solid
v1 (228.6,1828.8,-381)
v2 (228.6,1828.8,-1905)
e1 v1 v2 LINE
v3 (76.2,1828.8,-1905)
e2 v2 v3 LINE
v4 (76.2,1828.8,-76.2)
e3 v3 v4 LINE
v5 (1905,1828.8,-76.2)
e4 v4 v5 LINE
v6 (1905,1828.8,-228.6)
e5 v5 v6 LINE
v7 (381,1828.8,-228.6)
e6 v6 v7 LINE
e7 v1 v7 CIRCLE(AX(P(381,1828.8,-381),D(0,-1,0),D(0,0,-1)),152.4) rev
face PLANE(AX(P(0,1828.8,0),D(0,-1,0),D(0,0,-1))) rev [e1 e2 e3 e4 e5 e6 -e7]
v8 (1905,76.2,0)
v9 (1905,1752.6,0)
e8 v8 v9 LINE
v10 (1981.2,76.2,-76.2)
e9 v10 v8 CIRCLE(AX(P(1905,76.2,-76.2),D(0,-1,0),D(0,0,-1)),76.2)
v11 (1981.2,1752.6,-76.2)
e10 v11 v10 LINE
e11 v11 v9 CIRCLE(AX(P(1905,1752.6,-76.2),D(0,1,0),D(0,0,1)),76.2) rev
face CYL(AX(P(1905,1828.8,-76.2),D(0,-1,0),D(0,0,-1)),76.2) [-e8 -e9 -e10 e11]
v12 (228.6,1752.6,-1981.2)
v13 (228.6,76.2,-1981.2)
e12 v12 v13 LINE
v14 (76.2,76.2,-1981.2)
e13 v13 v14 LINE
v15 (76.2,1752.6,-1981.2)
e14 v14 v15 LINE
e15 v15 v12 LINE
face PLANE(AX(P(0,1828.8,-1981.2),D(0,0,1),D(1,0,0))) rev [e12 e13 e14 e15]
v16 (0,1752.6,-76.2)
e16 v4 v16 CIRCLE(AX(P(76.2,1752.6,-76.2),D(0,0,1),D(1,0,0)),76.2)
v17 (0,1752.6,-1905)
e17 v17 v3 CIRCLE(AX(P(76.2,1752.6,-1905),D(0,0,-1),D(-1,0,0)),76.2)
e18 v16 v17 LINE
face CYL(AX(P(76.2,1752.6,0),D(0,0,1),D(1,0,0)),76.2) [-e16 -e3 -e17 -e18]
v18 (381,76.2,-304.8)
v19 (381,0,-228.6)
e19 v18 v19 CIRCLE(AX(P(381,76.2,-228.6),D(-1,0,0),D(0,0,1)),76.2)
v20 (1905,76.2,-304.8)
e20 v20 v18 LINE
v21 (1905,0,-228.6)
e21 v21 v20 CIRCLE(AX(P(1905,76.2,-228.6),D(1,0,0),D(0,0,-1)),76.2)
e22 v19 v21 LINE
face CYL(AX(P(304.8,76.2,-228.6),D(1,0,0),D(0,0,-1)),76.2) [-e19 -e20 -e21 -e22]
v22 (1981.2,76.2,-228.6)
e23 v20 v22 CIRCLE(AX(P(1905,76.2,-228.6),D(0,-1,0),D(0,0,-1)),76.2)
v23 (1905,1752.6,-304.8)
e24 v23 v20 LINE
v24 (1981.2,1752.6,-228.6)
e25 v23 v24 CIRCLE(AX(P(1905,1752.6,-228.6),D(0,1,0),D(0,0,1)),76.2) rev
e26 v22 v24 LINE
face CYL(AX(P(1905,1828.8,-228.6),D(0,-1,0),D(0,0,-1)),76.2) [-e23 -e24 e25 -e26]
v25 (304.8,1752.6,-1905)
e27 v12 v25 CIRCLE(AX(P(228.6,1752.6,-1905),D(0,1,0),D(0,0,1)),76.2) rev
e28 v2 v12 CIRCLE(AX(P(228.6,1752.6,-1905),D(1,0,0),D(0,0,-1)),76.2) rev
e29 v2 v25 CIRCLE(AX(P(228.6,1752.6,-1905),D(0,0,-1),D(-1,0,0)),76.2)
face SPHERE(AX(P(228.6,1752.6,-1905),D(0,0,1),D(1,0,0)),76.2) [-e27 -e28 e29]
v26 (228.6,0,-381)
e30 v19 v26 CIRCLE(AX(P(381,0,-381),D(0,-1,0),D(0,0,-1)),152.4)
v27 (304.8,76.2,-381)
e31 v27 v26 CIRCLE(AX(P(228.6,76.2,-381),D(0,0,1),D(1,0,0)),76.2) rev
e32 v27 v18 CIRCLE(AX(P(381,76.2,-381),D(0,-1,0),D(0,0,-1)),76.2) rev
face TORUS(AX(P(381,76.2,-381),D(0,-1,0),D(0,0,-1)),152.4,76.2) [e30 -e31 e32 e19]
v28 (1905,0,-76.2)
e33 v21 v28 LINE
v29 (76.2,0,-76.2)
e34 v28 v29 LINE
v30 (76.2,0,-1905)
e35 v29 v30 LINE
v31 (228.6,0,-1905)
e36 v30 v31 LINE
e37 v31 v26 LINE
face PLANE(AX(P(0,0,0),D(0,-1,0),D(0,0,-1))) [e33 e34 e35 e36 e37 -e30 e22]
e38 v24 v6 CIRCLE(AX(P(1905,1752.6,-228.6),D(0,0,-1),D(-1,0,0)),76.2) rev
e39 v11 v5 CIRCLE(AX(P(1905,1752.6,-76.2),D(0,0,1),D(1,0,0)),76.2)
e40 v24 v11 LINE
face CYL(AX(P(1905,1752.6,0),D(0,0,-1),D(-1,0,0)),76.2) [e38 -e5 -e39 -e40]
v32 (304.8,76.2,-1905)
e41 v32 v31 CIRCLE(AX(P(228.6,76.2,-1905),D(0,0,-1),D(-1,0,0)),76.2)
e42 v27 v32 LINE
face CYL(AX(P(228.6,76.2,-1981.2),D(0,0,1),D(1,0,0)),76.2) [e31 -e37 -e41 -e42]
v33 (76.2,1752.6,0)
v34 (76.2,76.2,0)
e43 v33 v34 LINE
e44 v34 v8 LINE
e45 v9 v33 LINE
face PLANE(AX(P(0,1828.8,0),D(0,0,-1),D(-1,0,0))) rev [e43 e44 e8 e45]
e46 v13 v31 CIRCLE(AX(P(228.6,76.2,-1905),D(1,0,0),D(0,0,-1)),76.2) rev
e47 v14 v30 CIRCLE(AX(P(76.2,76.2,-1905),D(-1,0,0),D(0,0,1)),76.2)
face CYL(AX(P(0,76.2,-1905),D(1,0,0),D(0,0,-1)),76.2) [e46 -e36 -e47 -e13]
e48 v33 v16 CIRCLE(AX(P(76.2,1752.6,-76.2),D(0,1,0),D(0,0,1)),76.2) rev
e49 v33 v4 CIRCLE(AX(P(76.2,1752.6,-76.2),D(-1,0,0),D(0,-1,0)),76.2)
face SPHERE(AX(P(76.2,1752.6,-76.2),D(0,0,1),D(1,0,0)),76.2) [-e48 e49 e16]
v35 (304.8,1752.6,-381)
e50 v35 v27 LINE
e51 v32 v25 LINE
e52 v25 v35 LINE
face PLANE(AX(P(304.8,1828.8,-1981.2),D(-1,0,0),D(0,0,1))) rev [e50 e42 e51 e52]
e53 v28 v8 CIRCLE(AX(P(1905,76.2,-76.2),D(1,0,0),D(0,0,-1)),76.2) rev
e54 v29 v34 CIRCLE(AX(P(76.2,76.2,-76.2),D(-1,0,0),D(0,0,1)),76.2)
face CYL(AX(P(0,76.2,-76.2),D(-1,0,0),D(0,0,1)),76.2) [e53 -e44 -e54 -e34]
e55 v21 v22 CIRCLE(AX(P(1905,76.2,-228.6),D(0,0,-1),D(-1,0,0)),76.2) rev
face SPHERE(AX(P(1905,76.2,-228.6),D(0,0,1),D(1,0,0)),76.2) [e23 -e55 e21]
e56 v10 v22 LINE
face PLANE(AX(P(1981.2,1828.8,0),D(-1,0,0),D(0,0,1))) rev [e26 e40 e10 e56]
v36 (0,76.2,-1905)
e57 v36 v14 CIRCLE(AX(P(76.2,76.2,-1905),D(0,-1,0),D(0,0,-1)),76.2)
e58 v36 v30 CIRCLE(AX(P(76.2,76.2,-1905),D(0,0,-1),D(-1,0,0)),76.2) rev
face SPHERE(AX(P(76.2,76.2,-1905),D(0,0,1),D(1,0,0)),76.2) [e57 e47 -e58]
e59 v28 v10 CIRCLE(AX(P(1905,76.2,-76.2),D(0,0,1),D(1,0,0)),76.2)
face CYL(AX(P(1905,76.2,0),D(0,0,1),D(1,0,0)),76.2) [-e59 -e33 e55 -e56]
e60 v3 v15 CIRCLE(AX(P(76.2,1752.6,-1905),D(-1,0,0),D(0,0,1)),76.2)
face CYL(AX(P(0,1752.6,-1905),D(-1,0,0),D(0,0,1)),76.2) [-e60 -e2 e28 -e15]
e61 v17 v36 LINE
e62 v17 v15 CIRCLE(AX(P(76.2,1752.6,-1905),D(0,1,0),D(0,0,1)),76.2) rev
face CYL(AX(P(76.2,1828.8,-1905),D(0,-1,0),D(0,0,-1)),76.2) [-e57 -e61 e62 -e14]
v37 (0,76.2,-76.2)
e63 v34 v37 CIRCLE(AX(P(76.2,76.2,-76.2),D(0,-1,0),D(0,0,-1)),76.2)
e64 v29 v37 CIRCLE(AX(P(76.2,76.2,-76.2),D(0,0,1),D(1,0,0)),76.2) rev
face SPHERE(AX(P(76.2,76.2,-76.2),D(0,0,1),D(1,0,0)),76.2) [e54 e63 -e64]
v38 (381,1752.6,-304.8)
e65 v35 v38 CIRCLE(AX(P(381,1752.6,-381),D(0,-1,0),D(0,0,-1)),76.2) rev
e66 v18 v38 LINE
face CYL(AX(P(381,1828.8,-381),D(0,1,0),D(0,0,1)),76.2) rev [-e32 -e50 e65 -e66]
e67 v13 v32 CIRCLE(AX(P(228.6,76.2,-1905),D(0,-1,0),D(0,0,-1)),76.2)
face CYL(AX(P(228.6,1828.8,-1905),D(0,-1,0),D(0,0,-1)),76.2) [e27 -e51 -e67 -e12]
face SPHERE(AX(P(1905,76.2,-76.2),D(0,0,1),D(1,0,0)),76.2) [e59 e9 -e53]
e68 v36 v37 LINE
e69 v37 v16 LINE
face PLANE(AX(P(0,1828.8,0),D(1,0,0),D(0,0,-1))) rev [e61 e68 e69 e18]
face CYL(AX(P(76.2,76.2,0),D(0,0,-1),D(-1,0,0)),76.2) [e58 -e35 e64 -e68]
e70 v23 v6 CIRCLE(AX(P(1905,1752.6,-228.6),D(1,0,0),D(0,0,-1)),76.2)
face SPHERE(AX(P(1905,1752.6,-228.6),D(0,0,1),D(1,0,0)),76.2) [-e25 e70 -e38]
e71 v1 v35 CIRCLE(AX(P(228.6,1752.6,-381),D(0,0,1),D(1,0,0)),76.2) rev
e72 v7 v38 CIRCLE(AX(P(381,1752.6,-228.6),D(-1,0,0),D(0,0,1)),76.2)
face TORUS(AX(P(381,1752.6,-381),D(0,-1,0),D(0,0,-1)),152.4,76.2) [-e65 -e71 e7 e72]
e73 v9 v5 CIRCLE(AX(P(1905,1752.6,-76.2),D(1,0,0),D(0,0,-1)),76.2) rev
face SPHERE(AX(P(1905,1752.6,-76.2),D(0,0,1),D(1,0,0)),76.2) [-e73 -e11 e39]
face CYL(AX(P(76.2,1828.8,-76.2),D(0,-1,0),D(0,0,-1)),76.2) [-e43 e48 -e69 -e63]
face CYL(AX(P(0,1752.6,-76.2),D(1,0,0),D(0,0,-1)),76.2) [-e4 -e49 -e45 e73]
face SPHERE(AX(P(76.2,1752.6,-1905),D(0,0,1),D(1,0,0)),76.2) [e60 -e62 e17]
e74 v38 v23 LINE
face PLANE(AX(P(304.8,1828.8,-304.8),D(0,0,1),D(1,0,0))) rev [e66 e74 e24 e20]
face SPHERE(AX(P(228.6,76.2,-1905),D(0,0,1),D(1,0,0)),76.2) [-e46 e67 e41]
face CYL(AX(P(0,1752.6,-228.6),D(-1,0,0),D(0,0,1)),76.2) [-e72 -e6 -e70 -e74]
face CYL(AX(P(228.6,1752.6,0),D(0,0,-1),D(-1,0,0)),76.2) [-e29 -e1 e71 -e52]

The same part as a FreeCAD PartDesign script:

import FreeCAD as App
import Part
import Sketcher
Q = App.Units.Quantity


def add_polygon(sketch, points):
    """Adds a closed chain of lines whose ends are joined by coincident constraints."""
    first, n = sketch.GeometryCount, len(points)
    for a, b in zip(points, points[1:] + points[:1]):
        sketch.addGeometry(Part.LineSegment(App.Vector(*a, 0), App.Vector(*b, 0)), False)
    for i in range(n):
        sketch.addConstraint(Sketcher.Constraint("Coincident", first + i, 2, first + (i + 1) % n, 1))

doc = App.newDocument("Part")
body = doc.addObject("PartDesign::Body", "Body")

# Sketch on XZ plane
sketch1 = doc.addObject("Sketcher::SketchObject", "Sketch")
body.addObject(sketch1)
sketch1.AttachmentSupport = (doc.XZ_Plane, [""])
sketch1.MapMode = "FlatFace"
add_polygon(sketch1, [(305, -305), (305, -1981), (0, -1981), (0, 0), (1981, 0), (1981, -305)])  # lines 0-5
sketch1.addConstraint(Sketcher.Constraint("Vertical", 0))
sketch1.addConstraint(Sketcher.Constraint("Horizontal", 1))
sketch1.addConstraint(Sketcher.Constraint("Vertical", 2))
sketch1.addConstraint(Sketcher.Constraint("Horizontal", 3))
sketch1.addConstraint(Sketcher.Constraint("Vertical", 4))
sketch1.addConstraint(Sketcher.Constraint("Horizontal", 5))
sketch1.addConstraint(Sketcher.Constraint("Coincident", 2, 2, -1, 1))
sketch1.addConstraint(Sketcher.Constraint("Equal", 5, 0))
sketch1.addConstraint(Sketcher.Constraint("Equal", 3, 2))
sketch1.addConstraint(Sketcher.Constraint("DistanceX", 1, 2, 1, 1, Q("12 in")))
sketch1.addConstraint(Sketcher.Constraint("DistanceX", 3, 1, 3, 2, Q("78 in")))
pad1 = doc.addObject("PartDesign::Pad", "Pad")
body.addObject(pad1)
pad1.Profile = sketch1
pad1.Length = Q("72 in")
pad1.Reversed = True
doc.recompute()

fillet = doc.addObject("PartDesign::Fillet", "Fillet")
body.addObject(fillet)
fillet.Base = (pad1, ["Edge1"])
fillet.UseAllEdges = True
fillet.Radius = Q("3 in")

doc.recompute()
